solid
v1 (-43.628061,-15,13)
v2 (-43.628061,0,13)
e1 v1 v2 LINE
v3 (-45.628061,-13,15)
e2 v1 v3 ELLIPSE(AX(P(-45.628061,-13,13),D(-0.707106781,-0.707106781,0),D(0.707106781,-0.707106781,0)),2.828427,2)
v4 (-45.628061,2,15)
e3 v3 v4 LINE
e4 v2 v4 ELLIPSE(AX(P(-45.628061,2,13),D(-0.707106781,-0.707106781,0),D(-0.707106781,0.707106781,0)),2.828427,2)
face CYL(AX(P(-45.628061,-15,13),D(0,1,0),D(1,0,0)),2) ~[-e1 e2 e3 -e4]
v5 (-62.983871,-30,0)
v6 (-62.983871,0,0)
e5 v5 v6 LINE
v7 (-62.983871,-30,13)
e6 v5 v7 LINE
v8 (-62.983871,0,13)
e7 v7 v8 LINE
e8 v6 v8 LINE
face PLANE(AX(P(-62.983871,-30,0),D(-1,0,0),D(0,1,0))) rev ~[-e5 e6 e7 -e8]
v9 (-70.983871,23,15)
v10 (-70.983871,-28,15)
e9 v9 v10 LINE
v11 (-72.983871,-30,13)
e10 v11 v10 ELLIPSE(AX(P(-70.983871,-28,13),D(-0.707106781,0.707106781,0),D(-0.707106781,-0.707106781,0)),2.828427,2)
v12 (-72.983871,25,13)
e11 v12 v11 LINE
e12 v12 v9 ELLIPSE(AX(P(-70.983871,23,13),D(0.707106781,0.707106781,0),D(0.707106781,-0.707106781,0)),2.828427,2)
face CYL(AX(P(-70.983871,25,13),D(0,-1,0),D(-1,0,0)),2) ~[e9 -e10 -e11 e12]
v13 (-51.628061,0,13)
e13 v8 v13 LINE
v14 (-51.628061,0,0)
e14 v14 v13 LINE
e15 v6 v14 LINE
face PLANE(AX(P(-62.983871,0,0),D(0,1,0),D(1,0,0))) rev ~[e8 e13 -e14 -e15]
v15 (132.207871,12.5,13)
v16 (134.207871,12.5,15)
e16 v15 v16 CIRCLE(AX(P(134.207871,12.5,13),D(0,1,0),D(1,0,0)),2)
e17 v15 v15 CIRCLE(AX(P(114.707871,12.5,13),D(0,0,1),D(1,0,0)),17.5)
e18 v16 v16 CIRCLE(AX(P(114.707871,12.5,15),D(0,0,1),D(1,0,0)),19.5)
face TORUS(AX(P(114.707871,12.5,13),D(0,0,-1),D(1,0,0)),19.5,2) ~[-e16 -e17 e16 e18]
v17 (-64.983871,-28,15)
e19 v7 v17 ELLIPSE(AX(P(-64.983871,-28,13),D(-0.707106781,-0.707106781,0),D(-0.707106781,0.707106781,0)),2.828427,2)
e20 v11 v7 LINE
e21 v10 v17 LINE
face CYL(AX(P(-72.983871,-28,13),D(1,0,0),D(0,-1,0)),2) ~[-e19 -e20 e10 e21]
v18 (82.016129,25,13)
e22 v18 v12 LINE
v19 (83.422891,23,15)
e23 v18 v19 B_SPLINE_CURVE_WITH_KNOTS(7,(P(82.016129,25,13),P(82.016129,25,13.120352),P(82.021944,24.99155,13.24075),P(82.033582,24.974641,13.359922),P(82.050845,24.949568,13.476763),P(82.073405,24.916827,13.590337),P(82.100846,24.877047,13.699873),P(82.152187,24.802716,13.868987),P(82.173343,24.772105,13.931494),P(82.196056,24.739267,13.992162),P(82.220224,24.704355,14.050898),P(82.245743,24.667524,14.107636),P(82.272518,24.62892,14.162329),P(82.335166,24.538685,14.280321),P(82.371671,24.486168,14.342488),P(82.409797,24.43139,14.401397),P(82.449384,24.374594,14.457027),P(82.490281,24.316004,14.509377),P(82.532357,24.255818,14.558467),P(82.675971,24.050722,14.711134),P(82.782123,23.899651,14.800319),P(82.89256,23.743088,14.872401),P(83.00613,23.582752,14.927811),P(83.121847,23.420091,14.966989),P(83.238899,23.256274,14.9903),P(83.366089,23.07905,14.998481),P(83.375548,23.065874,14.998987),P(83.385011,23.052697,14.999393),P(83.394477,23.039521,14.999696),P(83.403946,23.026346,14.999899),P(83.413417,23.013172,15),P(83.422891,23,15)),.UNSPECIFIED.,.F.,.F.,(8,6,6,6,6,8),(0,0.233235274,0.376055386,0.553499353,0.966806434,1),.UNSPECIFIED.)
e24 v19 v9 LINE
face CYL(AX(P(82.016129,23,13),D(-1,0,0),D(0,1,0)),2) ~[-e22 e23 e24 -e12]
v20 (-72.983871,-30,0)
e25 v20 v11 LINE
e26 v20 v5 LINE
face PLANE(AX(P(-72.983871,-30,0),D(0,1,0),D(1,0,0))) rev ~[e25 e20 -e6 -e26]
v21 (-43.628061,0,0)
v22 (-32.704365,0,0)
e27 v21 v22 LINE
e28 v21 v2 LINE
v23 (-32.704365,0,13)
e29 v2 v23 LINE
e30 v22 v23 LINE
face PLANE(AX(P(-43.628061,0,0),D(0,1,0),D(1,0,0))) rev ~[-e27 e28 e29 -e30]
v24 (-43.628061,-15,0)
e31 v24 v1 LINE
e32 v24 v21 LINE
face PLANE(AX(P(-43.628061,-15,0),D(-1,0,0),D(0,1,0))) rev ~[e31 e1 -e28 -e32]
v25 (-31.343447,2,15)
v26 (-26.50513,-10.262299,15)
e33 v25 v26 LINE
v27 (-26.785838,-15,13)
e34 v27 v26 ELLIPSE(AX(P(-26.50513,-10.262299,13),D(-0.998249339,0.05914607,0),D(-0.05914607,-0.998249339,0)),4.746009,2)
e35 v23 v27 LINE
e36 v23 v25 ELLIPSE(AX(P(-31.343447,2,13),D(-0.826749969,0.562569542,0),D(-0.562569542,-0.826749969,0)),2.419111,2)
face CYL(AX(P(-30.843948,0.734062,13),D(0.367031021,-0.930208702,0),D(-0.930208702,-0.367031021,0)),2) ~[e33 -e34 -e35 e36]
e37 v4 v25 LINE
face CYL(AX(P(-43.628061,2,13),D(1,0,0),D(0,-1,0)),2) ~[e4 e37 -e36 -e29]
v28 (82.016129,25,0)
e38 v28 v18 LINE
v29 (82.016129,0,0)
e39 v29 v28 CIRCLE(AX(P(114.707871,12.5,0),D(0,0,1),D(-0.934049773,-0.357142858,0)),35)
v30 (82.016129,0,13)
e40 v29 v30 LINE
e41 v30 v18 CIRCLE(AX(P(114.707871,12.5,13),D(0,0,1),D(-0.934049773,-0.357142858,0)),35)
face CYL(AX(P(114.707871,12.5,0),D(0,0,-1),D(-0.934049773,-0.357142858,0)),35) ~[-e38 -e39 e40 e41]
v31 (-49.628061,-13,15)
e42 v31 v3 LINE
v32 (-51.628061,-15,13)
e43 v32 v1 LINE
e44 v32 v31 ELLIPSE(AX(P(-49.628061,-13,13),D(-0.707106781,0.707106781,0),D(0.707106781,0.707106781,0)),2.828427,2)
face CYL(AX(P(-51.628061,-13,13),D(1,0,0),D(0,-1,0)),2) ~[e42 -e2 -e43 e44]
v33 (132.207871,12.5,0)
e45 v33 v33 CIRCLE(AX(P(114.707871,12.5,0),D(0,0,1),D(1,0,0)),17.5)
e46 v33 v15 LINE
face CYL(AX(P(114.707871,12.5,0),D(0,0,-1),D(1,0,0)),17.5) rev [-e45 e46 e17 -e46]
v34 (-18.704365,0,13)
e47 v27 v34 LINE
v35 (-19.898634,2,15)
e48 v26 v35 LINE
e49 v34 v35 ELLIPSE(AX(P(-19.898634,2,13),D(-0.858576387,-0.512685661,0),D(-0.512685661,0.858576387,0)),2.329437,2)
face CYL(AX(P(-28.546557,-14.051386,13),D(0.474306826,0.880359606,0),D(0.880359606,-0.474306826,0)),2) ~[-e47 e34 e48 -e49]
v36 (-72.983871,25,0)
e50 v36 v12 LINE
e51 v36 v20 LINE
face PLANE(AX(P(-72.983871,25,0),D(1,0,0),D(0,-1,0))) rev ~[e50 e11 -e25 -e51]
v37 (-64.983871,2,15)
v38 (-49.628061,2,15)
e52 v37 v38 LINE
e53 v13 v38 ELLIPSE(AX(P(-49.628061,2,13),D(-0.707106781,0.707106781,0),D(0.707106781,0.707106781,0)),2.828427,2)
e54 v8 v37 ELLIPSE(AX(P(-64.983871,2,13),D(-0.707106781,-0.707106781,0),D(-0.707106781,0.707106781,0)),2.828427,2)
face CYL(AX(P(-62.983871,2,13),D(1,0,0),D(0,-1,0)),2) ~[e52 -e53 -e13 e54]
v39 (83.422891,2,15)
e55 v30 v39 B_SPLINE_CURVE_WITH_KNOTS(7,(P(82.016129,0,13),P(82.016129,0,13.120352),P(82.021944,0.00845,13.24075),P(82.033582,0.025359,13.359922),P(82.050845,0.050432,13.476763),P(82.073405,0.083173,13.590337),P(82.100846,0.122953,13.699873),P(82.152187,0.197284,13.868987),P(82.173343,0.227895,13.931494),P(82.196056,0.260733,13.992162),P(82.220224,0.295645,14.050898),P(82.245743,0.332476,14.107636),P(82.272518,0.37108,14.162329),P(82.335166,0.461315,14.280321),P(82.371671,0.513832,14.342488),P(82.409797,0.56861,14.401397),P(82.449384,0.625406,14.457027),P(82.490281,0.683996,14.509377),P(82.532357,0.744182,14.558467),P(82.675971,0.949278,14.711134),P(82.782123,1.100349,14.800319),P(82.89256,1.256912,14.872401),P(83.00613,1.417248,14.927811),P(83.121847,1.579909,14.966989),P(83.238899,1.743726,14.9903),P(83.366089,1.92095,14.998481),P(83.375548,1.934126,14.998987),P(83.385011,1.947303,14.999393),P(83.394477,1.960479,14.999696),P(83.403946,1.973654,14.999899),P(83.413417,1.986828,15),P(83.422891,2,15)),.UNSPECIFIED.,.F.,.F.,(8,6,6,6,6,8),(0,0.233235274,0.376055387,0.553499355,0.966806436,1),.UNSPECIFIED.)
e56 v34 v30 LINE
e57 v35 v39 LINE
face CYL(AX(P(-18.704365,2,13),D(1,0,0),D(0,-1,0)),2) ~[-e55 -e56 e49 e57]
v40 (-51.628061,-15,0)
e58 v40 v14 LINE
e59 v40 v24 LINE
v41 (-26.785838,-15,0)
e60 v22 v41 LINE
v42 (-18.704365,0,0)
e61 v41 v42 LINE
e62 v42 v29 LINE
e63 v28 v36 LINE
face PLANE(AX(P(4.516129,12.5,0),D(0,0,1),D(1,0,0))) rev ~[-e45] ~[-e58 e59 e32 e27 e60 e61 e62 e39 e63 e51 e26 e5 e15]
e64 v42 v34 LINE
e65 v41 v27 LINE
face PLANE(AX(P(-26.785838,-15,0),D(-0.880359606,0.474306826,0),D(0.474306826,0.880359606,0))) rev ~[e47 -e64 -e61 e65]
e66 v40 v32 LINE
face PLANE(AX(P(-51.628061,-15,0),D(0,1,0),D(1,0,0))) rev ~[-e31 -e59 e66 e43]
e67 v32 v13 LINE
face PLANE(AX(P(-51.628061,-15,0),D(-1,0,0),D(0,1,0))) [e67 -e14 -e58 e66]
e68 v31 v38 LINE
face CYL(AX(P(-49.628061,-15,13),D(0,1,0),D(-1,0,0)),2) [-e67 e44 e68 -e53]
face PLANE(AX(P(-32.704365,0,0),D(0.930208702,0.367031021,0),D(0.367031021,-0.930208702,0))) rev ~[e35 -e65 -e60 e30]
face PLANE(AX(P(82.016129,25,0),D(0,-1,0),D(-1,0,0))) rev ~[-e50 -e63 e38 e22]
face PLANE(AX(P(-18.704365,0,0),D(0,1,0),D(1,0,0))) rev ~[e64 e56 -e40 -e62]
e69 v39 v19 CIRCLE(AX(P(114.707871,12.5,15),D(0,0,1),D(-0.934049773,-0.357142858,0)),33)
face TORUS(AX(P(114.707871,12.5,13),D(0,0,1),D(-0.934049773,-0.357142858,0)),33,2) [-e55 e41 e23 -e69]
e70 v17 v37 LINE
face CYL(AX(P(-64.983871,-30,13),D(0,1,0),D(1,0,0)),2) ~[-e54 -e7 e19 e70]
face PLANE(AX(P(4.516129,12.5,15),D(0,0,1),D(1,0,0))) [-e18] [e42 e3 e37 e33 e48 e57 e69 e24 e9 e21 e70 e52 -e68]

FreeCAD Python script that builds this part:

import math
import FreeCAD as App
import Part
import Sketcher
from FreeCAD import Vector


def edges_at(feature, points):
    """Names of the edges that pass closest to the given points."""
    edges = feature.Shape.Edges
    near = lambda p: min(range(len(edges)), key=lambda i: edges[i].distToShape(Part.Vertex(*p))[0])
    return sorted({f"Edge{near(p) + 1}" for p in points})

doc = App.newDocument("Part")
body = doc.addObject("PartDesign::Body", "Body")

# Sketch on XY plane
sketch1 = doc.addObject("Sketcher::SketchObject", "Sketch")
body.addObject(sketch1)
sketch1.AttachmentSupport = (doc.XY_Plane, [""])
sketch1.MapMode = "FlatFace"
sketch1.addGeometry([
    Part.LineSegment(Vector(82, 25, 0), Vector(-73, 25, 0)),  # 0
    Part.LineSegment(Vector(-73, 25, 0), Vector(-73, -30, 0)),  # 1
    Part.LineSegment(Vector(-73, -30, 0), Vector(-63, -30, 0)),  # 2
    Part.LineSegment(Vector(-63, -30, 0), Vector(-63, 0, 0)),  # 3
    Part.LineSegment(Vector(-63, 0, 0), Vector(-52, 0, 0)),  # 4
    Part.LineSegment(Vector(-52, 0, 0), Vector(-52, -15, 0)),  # 5
    Part.LineSegment(Vector(-52, -15, 0), Vector(-44, -15, 0)),  # 6
    Part.LineSegment(Vector(-44, -15, 0), Vector(-44, 0, 0)),  # 7
    Part.LineSegment(Vector(-44, 0, 0), Vector(-33, 0, 0)),  # 8
    Part.LineSegment(Vector(-33, 0, 0), Vector(-27, -15, 0)),  # 9
    Part.LineSegment(Vector(-27, -15, 0), Vector(-19, 0, 0)),  # 10
    Part.LineSegment(Vector(-19, 0, 0), Vector(82, 0, 0)),  # 11
    Part.ArcOfCircle(Part.Circle(Vector(115, 12, 0), Vector(0, 0, 1), 35), math.radians(-159), math.radians(159)),  # 12
    Part.Circle(Vector(115, 12, 0), Vector(0, 0, 1), 18),  # 13
], False)
sketch1.addConstraint([
    Sketcher.Constraint("Coincident", 0, 2, 1, 1),
    Sketcher.Constraint("Coincident", 1, 2, 2, 1),
    Sketcher.Constraint("Coincident", 2, 2, 3, 1),
    Sketcher.Constraint("Coincident", 3, 2, 4, 1),
    Sketcher.Constraint("Coincident", 4, 2, 5, 1),
    Sketcher.Constraint("Coincident", 5, 2, 6, 1),
    Sketcher.Constraint("Coincident", 6, 2, 7, 1),
    Sketcher.Constraint("Coincident", 7, 2, 8, 1),
    Sketcher.Constraint("Coincident", 8, 2, 9, 1),
    Sketcher.Constraint("Coincident", 9, 2, 10, 1),
    Sketcher.Constraint("Coincident", 10, 2, 11, 1),
    Sketcher.Constraint("Coincident", 11, 2, 12, 1),
    Sketcher.Constraint("Coincident", 12, 2, 0, 1),
    Sketcher.Constraint("Horizontal", 0),
    Sketcher.Constraint("Vertical", 1),
    Sketcher.Constraint("Horizontal", 2),
    Sketcher.Constraint("Vertical", 3),
    Sketcher.Constraint("Horizontal", 4),
    Sketcher.Constraint("Vertical", 5),
    Sketcher.Constraint("Horizontal", 6),
    Sketcher.Constraint("Vertical", 7),
    Sketcher.Constraint("Horizontal", 8),
    Sketcher.Constraint("Horizontal", 11),
    Sketcher.Constraint("Coincident", 13, 3, 12, 3),
    Sketcher.Constraint("PointOnObject", 3, 2, -1),
    Sketcher.Constraint("PointOnObject", 7, 2, -1),
    Sketcher.Constraint("PointOnObject", 10, 2, -1),
    Sketcher.Constraint("Horizontal", 6, 2, 9, 2),
    Sketcher.Constraint("Vertical", 11, 2, 12, 2),
    Sketcher.Constraint("Diameter", 13, 35.0),
    Sketcher.Constraint("Radius", 12, 35.0),
    Sketcher.Constraint("DistanceX", 0, 2, 0, 1, 155.0),
    Sketcher.Constraint("DistanceX", 2, 1, 2, 2, 10.0),
    Sketcher.Constraint("DistanceX", 6, 1, 6, 2, 8.0),
    Sketcher.Constraint("DistanceY", 1, 2, 1, 1, 55.0),
    Sketcher.Constraint("DistanceY", 3, 1, 3, 2, 30.0),
    Sketcher.Constraint("DistanceY", 5, 2, 5, 1, 15.0),
    Sketcher.Constraint("DistanceX", 8, 2, 10, 2, 14.0),
    Sketcher.Constraint("DistanceX", 4, 1, 4, 2, 11.35581),
    Sketcher.Constraint("Distance", 10, 17.038492),
    Sketcher.Constraint("DistanceX", 8, 1, 8, 2, 10.923696),
    Sketcher.Constraint("DistanceX", -1, 1, 12, 3, 114.707871),
])
pad1 = doc.addObject("PartDesign::Pad", "Pad")
body.addObject(pad1)
pad1.Profile = sketch1
pad1.Length = 15
doc.recompute()

fillet = doc.addObject("PartDesign::Fillet", "Fillet")
body.addObject(fillet)
fillet.Base = (pad1, edges_at(pad1, [
    (-72.984, -2.5, 15),
    (-62.984, -15, 15),
    (-67.984, -30, 15),
    (-47.628, -15, 15),
    (-43.628, -7.5, 15),
    (-29.745, -7.5, 15),
    (4.516, 25, 15),
    (-57.306, 0, 15),
    (-51.628, -7.5, 15),
    (-38.166, 0, 15),
    (-22.745, -7.5, 15),
    (31.656, 0, 15),
    (149.708, 12.5, 15),
    (97.208, 12.5, 15),
]))
fillet.Radius = 2

doc.recompute()
